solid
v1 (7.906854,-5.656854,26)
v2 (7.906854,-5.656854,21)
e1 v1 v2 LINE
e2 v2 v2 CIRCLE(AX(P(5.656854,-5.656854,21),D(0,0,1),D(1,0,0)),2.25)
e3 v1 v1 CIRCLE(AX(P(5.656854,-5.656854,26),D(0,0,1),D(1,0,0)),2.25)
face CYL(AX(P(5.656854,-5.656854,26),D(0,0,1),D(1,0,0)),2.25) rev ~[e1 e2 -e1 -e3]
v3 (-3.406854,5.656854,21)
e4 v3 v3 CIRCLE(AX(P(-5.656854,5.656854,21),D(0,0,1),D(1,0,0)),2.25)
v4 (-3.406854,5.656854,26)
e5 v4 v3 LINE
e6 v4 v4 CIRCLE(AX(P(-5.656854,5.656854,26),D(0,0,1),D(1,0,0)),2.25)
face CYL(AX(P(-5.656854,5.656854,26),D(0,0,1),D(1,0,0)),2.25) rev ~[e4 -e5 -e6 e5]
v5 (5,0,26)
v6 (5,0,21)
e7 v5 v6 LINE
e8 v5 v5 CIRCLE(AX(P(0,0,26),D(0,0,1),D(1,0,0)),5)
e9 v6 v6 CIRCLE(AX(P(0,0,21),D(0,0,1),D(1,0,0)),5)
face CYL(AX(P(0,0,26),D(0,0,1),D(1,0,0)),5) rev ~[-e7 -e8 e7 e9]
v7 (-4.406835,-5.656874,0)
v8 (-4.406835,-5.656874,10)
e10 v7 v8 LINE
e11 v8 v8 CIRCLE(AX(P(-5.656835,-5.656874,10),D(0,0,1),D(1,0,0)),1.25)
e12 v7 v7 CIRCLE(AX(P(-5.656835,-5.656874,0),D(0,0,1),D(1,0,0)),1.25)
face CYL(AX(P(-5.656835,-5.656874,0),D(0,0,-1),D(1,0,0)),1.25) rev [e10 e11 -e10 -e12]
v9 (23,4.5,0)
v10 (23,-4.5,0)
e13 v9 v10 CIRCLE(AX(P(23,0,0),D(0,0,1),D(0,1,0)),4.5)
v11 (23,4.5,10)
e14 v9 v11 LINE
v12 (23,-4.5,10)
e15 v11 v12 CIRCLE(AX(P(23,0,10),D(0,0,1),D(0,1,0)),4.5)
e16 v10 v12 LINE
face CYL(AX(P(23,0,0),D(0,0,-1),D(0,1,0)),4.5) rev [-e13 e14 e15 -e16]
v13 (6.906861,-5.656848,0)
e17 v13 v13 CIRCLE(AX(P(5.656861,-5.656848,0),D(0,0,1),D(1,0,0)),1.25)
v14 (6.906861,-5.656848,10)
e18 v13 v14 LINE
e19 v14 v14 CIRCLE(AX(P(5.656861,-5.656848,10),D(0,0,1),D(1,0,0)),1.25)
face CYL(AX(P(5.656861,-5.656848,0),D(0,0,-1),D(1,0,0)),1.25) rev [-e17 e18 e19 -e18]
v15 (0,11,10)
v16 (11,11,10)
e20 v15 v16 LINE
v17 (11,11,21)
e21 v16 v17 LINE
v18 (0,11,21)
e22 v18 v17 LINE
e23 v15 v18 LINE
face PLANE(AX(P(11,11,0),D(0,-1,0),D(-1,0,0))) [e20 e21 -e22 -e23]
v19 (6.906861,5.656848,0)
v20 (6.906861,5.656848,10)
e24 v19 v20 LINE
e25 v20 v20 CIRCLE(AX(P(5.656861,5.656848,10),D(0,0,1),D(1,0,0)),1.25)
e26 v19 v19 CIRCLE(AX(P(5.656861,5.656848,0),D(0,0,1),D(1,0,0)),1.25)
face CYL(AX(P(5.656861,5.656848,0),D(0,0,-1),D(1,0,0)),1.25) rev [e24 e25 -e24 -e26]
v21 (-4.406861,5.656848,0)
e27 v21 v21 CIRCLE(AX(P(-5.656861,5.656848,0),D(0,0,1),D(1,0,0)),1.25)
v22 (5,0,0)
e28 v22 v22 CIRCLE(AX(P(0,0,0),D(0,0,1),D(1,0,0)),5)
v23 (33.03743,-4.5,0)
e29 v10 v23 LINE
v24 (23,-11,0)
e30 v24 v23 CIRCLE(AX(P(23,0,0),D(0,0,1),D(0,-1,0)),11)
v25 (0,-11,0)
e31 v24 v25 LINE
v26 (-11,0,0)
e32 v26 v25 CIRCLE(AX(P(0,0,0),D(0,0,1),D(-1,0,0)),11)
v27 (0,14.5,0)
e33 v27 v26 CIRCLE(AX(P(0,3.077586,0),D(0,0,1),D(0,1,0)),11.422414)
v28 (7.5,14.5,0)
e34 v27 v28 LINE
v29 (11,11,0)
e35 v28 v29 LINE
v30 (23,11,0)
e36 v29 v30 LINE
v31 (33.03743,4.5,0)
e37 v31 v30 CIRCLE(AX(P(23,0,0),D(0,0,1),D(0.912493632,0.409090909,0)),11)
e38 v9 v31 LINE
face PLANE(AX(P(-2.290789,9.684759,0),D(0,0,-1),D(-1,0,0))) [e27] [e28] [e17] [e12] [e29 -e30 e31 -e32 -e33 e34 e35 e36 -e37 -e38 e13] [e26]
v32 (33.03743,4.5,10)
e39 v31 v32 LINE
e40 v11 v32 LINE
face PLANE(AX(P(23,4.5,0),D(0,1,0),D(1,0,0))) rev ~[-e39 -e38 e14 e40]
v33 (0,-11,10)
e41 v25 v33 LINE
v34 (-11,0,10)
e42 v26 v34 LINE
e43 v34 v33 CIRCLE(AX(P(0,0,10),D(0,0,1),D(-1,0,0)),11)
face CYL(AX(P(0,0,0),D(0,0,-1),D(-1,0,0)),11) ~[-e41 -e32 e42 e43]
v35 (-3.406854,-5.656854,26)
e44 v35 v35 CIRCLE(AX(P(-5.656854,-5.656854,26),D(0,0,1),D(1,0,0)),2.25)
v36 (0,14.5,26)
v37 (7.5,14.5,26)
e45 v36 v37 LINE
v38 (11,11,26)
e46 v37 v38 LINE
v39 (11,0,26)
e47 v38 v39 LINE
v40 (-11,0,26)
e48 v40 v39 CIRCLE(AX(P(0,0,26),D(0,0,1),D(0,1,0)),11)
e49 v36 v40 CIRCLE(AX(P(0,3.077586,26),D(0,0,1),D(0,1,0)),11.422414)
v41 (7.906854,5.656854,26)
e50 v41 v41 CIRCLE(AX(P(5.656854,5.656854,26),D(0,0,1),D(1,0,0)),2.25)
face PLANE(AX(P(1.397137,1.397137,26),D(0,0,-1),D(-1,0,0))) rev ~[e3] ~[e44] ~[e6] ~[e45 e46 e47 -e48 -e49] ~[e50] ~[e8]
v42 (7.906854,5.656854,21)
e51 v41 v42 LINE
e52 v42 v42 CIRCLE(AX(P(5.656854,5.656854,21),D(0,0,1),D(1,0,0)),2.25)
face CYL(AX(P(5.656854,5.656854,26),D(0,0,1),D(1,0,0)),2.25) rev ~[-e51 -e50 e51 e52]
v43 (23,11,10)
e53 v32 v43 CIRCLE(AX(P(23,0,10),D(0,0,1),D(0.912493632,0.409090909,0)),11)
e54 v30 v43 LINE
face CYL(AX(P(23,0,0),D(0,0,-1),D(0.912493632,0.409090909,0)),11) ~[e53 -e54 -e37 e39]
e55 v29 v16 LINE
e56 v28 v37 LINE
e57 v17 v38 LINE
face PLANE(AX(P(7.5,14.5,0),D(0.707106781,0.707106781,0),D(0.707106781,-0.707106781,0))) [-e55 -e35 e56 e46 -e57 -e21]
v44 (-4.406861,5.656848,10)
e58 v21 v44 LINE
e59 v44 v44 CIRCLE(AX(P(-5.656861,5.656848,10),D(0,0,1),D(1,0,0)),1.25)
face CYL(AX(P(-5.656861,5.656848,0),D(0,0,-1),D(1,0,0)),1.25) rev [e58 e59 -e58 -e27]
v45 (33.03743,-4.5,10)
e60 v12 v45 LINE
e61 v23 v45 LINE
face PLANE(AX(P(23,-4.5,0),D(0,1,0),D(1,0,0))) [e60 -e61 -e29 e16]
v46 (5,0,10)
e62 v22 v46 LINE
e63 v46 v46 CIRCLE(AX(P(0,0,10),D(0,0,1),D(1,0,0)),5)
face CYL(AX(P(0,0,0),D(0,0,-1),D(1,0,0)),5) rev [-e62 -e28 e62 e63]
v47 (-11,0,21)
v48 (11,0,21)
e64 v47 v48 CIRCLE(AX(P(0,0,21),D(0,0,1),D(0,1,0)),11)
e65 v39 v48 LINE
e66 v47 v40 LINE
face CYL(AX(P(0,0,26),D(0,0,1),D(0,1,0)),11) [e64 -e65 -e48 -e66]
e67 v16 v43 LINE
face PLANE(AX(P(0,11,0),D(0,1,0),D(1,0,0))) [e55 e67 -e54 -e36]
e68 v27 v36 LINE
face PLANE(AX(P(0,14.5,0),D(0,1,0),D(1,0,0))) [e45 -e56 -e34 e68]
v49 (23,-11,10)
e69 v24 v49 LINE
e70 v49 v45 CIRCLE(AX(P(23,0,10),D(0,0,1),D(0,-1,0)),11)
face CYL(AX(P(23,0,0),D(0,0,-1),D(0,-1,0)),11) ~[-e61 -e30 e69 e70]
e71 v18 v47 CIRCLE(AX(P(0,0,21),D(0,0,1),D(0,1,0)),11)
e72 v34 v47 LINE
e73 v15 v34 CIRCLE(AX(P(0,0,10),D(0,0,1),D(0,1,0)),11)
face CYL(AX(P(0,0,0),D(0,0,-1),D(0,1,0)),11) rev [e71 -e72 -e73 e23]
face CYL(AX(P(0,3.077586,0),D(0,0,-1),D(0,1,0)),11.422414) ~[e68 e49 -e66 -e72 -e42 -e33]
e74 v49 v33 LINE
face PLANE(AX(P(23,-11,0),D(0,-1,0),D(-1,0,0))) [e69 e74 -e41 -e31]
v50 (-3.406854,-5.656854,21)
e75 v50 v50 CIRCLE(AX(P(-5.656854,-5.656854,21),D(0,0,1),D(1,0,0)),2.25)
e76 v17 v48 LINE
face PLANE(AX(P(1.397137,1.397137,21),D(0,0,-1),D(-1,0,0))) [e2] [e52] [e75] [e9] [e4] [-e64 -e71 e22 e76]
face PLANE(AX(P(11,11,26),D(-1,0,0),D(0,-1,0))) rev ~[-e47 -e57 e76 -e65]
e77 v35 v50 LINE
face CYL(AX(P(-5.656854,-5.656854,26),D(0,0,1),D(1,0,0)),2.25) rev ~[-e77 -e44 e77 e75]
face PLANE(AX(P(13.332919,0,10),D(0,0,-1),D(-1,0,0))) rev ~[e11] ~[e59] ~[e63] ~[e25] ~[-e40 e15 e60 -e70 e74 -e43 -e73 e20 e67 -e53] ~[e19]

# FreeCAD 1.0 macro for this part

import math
import FreeCAD as App
import Part
import Sketcher

V = App.Vector
Q = App.Units.Quantity

doc = App.newDocument("Part")
body = doc.addObject("PartDesign::Body", "Body")

sketch1 = body.newObject("Sketcher::SketchObject", "Sketch")
sketch1.AttachmentSupport = (doc.getObject("XY_Plane"), [""])
sketch1.MapMode = "FlatFace"
sketch1.addGeometry(Part.LineSegment(V(23, 11, 0), V(0, 11, 0)), False)
sketch1.addGeometry(Part.ArcOfCircle(Part.Circle(V(0, 0, 0), V(0, 0, 1), 11), math.radians(90), math.radians(180)), False)
sketch1.addGeometry(Part.ArcOfCircle(Part.Circle(V(0, 0, 0), V(0, 0, 1), 11), math.radians(180), math.radians(270)), False)
sketch1.addGeometry(Part.LineSegment(V(0, -11, 0), V(23, -11, 0)), False)
sketch1.addGeometry(Part.ArcOfCircle(Part.Circle(V(23, 0, 0), V(0, 0, 1), 11), math.radians(-90), math.radians(-24)), False)
sketch1.addGeometry(Part.LineSegment(V(33, -4.5, 0), V(23, -4.5, 0)), False)
sketch1.addGeometry(Part.ArcOfCircle(Part.Circle(V(23, 0, 0), V(0, 0, 1), 4.5), math.radians(90), math.radians(270)), False)
sketch1.addGeometry(Part.LineSegment(V(23, 4.5, 0), V(33, 4.5, 0)), False)
sketch1.addGeometry(Part.ArcOfCircle(Part.Circle(V(23, 0, 0), V(0, 0, 1), 11), math.radians(24), math.radians(90)), False)
sketch1.addGeometry(Part.Circle(V(5.7, -5.7, 0), V(0, 0, 1), 1.2), False)
sketch1.addGeometry(Part.Circle(V(-5.7, -5.7, 0), V(0, 0, 1), 1.2), False)
sketch1.addGeometry(Part.Circle(V(5.7, 5.7, 0), V(0, 0, 1), 1.2), False)
sketch1.addGeometry(Part.Circle(V(0, 0, 0), V(0, 0, 1), 5), False)
sketch1.addGeometry(Part.Circle(V(-5.7, 5.7, 0), V(0, 0, 1), 1.2), False)
sketch1.addConstraint(Sketcher.Constraint("Tangent", 0, 2, 1, 1))
sketch1.addConstraint(Sketcher.Constraint("Tangent", 1, 2, 2, 1))
sketch1.addConstraint(Sketcher.Constraint("Tangent", 2, 2, 3, 1))
sketch1.addConstraint(Sketcher.Constraint("Tangent", 3, 2, 4, 1))
sketch1.addConstraint(Sketcher.Constraint("Coincident", 4, 2, 5, 1))
sketch1.addConstraint(Sketcher.Constraint("Tangent", 5, 2, 6, 2))
sketch1.addConstraint(Sketcher.Constraint("Tangent", 6, 1, 7, 1))
sketch1.addConstraint(Sketcher.Constraint("Coincident", 7, 2, 8, 1))
sketch1.addConstraint(Sketcher.Constraint("Tangent", 8, 2, 0, 1))
sketch1.addConstraint(Sketcher.Constraint("Horizontal", 0))
sketch1.addConstraint(Sketcher.Constraint("Horizontal", 3))
sketch1.addConstraint(Sketcher.Constraint("Horizontal", 5))
sketch1.addConstraint(Sketcher.Constraint("Horizontal", 7))
sketch1.addConstraint(Sketcher.Constraint("Coincident", 1, 3, -1, 1))
sketch1.addConstraint(Sketcher.Constraint("Coincident", 12, 3, -1, 1))
sketch1.addConstraint(Sketcher.Constraint("Coincident", 6, 3, 4, 3))
sketch1.addConstraint(Sketcher.Constraint("Coincident", 8, 3, 4, 3))
sketch1.addConstraint(Sketcher.Constraint("Equal", 1, 2))
sketch1.addConstraint(Sketcher.Constraint("Equal", 2, 4))
sketch1.addConstraint(Sketcher.Constraint("Equal", 9, 10))
sketch1.addConstraint(Sketcher.Constraint("Equal", 10, 11))
sketch1.addConstraint(Sketcher.Constraint("Equal", 11, 13))
sketch1.addConstraint(Sketcher.Constraint("Symmetric", 9, 3, 13, 3, -1, 1))
sketch1.addConstraint(Sketcher.Constraint("Symmetric", 11, 3, 13, 3, -2))
sketch1.addConstraint(Sketcher.Constraint("PointOnObject", 1, 2, -1))
sketch1.addConstraint(Sketcher.Constraint("Diameter", 12, 10.0))
sketch1.addConstraint(Sketcher.Constraint("Radius", 1, 11.0))
sketch1.addConstraint(Sketcher.Constraint("Diameter", 9, 2.5))
sketch1.addConstraint(Sketcher.Constraint("Radius", 6, 4.5))
sketch1.addConstraint(Sketcher.Constraint("DistanceX", 0, 2, 0, 1, 23.0))
sketch1.addConstraint(Sketcher.Constraint("DistanceX", -1, 1, 9, 3, 5.656861))
sketch1.addConstraint(Sketcher.Constraint("DistanceY", 10, 3, 11, 3, 11.313722))
sketch1.addConstraint(Sketcher.Constraint("DistanceY", 9, 3, -1, 1, 5.656848))
sketch1.addConstraint(Sketcher.Constraint("DistanceX", 10, 3, -1, 1, 5.656835))
pad1 = body.newObject("PartDesign::Pad", "Pad")
pad1.Profile = sketch1
pad1.Length = 10

sketch2 = body.newObject("Sketcher::SketchObject", "Sketch001")
sketch2.AttachmentSupport = (doc.getObject("XY_Plane"), [""])
sketch2.MapMode = "FlatFace"
sketch2.addGeometry(Part.ArcOfCircle(Part.Circle(V(0, 0, 0), V(0, 0, 1), 11), math.radians(90), math.radians(180)), False)
sketch2.addGeometry(Part.LineSegment(V(0, 11, 0), V(11, 11, 0)), False)
sketch2.addGeometry(Part.LineSegment(V(11, 11, 0), V(7.5, 14.5, 0)), False)
sketch2.addGeometry(Part.LineSegment(V(7.5, 14.5, 0), V(0, 14.5, 0)), False)
sketch2.addGeometry(Part.ArcOfCircle(Part.Circle(V(0, 3.1, 0), V(0, 0, 1), 11.4), math.radians(90), math.radians(196)), False)
sketch2.addConstraint(Sketcher.Constraint("Tangent", 0, 1, 1, 1))
sketch2.addConstraint(Sketcher.Constraint("Coincident", 1, 2, 2, 1))
sketch2.addConstraint(Sketcher.Constraint("Coincident", 2, 2, 3, 1))
sketch2.addConstraint(Sketcher.Constraint("Tangent", 3, 2, 4, 1))
sketch2.addConstraint(Sketcher.Constraint("Coincident", 4, 2, 0, 2))
sketch2.addConstraint(Sketcher.Constraint("Horizontal", 1))
sketch2.addConstraint(Sketcher.Constraint("Horizontal", 3))
sketch2.addConstraint(Sketcher.Constraint("Coincident", 0, 3, -1, 1))
sketch2.addConstraint(Sketcher.Constraint("PointOnObject", 4, 3, -2))
sketch2.addConstraint(Sketcher.Constraint("PointOnObject", 4, 2, -1))
sketch2.addConstraint(Sketcher.Constraint("Radius", 0, 11.0))
sketch2.addConstraint(Sketcher.Constraint("DistanceX", 1, 1, 1, 2, 11.0))
sketch2.addConstraint(Sketcher.Constraint("Angle", 2, Q("135 deg")))
sketch2.addConstraint(Sketcher.Constraint("DistanceX", 3, 2, 3, 1, 7.5))
pad2 = body.newObject("PartDesign::Pad", "Pad001")
pad2.Profile = sketch2
pad2.Length = 26

sketch3 = body.newObject("Sketcher::SketchObject", "Sketch002")
sketch3.AttachmentSupport = (doc.getObject("XY_Plane"), [""])
sketch3.MapMode = "FlatFace"
sketch3.AttachmentOffset = App.Placement(V(0, 0, 26), App.Rotation())
sketch3.addGeometry(Part.LineSegment(V(11, 11, 0), V(0, 11, 0)), False)
sketch3.addGeometry(Part.ArcOfCircle(Part.Circle(V(0, 0, 0), V(0, 0, 1), 11), math.radians(90), math.radians(360)), False)
sketch3.addGeometry(Part.LineSegment(V(11, 0, 0), V(11, 11, 0)), False)
sketch3.addGeometry(Part.Circle(V(5.7, -5.7, 0), V(0, 0, 1), 2.2), False)
sketch3.addGeometry(Part.Circle(V(-5.7, -5.7, 0), V(0, 0, 1), 2.2), False)
sketch3.addGeometry(Part.Circle(V(0, 0, 0), V(0, 0, 1), 5), False)
sketch3.addGeometry(Part.Circle(V(5.7, 5.7, 0), V(0, 0, 1), 2.2), False)
sketch3.addGeometry(Part.Circle(V(-5.7, 5.7, 0), V(0, 0, 1), 2.2), False)
sketch3.addConstraint(Sketcher.Constraint("Tangent", 0, 2, 1, 1))
sketch3.addConstraint(Sketcher.Constraint("Tangent", 1, 2, 2, 1))
sketch3.addConstraint(Sketcher.Constraint("Coincident", 2, 2, 0, 1))
sketch3.addConstraint(Sketcher.Constraint("Horizontal", 0))
sketch3.addConstraint(Sketcher.Constraint("Vertical", 2))
sketch3.addConstraint(Sketcher.Constraint("Coincident", 1, 3, -1, 1))
sketch3.addConstraint(Sketcher.Constraint("Coincident", 5, 3, -1, 1))
sketch3.addConstraint(Sketcher.Constraint("Equal", 3, 4))
sketch3.addConstraint(Sketcher.Constraint("Equal", 4, 6))
sketch3.addConstraint(Sketcher.Constraint("Equal", 6, 7))
sketch3.addConstraint(Sketcher.Constraint("Symmetric", 4, 3, 6, 3, -1, 1))
sketch3.addConstraint(Sketcher.Constraint("Symmetric", 3, 3, 7, 3, -1, 1))
sketch3.addConstraint(Sketcher.Constraint("Symmetric", 3, 3, 4, 3, -2))
sketch3.addConstraint(Sketcher.Constraint("Diameter", 5, 10.0))
sketch3.addConstraint(Sketcher.Constraint("Radius", 1, 11.0))
sketch3.addConstraint(Sketcher.Constraint("Diameter", 3, 4.5))
sketch3.addConstraint(Sketcher.Constraint("DistanceX", 4, 3, 3, 3, 11.313709))
sketch3.addConstraint(Sketcher.Constraint("DistanceY", 3, 3, 6, 3, 11.313709))
pad3 = body.newObject("PartDesign::Pad", "Pad002")
pad3.Profile = sketch3
pad3.Length = 5
pad3.Reversed = True

doc.recompute()
